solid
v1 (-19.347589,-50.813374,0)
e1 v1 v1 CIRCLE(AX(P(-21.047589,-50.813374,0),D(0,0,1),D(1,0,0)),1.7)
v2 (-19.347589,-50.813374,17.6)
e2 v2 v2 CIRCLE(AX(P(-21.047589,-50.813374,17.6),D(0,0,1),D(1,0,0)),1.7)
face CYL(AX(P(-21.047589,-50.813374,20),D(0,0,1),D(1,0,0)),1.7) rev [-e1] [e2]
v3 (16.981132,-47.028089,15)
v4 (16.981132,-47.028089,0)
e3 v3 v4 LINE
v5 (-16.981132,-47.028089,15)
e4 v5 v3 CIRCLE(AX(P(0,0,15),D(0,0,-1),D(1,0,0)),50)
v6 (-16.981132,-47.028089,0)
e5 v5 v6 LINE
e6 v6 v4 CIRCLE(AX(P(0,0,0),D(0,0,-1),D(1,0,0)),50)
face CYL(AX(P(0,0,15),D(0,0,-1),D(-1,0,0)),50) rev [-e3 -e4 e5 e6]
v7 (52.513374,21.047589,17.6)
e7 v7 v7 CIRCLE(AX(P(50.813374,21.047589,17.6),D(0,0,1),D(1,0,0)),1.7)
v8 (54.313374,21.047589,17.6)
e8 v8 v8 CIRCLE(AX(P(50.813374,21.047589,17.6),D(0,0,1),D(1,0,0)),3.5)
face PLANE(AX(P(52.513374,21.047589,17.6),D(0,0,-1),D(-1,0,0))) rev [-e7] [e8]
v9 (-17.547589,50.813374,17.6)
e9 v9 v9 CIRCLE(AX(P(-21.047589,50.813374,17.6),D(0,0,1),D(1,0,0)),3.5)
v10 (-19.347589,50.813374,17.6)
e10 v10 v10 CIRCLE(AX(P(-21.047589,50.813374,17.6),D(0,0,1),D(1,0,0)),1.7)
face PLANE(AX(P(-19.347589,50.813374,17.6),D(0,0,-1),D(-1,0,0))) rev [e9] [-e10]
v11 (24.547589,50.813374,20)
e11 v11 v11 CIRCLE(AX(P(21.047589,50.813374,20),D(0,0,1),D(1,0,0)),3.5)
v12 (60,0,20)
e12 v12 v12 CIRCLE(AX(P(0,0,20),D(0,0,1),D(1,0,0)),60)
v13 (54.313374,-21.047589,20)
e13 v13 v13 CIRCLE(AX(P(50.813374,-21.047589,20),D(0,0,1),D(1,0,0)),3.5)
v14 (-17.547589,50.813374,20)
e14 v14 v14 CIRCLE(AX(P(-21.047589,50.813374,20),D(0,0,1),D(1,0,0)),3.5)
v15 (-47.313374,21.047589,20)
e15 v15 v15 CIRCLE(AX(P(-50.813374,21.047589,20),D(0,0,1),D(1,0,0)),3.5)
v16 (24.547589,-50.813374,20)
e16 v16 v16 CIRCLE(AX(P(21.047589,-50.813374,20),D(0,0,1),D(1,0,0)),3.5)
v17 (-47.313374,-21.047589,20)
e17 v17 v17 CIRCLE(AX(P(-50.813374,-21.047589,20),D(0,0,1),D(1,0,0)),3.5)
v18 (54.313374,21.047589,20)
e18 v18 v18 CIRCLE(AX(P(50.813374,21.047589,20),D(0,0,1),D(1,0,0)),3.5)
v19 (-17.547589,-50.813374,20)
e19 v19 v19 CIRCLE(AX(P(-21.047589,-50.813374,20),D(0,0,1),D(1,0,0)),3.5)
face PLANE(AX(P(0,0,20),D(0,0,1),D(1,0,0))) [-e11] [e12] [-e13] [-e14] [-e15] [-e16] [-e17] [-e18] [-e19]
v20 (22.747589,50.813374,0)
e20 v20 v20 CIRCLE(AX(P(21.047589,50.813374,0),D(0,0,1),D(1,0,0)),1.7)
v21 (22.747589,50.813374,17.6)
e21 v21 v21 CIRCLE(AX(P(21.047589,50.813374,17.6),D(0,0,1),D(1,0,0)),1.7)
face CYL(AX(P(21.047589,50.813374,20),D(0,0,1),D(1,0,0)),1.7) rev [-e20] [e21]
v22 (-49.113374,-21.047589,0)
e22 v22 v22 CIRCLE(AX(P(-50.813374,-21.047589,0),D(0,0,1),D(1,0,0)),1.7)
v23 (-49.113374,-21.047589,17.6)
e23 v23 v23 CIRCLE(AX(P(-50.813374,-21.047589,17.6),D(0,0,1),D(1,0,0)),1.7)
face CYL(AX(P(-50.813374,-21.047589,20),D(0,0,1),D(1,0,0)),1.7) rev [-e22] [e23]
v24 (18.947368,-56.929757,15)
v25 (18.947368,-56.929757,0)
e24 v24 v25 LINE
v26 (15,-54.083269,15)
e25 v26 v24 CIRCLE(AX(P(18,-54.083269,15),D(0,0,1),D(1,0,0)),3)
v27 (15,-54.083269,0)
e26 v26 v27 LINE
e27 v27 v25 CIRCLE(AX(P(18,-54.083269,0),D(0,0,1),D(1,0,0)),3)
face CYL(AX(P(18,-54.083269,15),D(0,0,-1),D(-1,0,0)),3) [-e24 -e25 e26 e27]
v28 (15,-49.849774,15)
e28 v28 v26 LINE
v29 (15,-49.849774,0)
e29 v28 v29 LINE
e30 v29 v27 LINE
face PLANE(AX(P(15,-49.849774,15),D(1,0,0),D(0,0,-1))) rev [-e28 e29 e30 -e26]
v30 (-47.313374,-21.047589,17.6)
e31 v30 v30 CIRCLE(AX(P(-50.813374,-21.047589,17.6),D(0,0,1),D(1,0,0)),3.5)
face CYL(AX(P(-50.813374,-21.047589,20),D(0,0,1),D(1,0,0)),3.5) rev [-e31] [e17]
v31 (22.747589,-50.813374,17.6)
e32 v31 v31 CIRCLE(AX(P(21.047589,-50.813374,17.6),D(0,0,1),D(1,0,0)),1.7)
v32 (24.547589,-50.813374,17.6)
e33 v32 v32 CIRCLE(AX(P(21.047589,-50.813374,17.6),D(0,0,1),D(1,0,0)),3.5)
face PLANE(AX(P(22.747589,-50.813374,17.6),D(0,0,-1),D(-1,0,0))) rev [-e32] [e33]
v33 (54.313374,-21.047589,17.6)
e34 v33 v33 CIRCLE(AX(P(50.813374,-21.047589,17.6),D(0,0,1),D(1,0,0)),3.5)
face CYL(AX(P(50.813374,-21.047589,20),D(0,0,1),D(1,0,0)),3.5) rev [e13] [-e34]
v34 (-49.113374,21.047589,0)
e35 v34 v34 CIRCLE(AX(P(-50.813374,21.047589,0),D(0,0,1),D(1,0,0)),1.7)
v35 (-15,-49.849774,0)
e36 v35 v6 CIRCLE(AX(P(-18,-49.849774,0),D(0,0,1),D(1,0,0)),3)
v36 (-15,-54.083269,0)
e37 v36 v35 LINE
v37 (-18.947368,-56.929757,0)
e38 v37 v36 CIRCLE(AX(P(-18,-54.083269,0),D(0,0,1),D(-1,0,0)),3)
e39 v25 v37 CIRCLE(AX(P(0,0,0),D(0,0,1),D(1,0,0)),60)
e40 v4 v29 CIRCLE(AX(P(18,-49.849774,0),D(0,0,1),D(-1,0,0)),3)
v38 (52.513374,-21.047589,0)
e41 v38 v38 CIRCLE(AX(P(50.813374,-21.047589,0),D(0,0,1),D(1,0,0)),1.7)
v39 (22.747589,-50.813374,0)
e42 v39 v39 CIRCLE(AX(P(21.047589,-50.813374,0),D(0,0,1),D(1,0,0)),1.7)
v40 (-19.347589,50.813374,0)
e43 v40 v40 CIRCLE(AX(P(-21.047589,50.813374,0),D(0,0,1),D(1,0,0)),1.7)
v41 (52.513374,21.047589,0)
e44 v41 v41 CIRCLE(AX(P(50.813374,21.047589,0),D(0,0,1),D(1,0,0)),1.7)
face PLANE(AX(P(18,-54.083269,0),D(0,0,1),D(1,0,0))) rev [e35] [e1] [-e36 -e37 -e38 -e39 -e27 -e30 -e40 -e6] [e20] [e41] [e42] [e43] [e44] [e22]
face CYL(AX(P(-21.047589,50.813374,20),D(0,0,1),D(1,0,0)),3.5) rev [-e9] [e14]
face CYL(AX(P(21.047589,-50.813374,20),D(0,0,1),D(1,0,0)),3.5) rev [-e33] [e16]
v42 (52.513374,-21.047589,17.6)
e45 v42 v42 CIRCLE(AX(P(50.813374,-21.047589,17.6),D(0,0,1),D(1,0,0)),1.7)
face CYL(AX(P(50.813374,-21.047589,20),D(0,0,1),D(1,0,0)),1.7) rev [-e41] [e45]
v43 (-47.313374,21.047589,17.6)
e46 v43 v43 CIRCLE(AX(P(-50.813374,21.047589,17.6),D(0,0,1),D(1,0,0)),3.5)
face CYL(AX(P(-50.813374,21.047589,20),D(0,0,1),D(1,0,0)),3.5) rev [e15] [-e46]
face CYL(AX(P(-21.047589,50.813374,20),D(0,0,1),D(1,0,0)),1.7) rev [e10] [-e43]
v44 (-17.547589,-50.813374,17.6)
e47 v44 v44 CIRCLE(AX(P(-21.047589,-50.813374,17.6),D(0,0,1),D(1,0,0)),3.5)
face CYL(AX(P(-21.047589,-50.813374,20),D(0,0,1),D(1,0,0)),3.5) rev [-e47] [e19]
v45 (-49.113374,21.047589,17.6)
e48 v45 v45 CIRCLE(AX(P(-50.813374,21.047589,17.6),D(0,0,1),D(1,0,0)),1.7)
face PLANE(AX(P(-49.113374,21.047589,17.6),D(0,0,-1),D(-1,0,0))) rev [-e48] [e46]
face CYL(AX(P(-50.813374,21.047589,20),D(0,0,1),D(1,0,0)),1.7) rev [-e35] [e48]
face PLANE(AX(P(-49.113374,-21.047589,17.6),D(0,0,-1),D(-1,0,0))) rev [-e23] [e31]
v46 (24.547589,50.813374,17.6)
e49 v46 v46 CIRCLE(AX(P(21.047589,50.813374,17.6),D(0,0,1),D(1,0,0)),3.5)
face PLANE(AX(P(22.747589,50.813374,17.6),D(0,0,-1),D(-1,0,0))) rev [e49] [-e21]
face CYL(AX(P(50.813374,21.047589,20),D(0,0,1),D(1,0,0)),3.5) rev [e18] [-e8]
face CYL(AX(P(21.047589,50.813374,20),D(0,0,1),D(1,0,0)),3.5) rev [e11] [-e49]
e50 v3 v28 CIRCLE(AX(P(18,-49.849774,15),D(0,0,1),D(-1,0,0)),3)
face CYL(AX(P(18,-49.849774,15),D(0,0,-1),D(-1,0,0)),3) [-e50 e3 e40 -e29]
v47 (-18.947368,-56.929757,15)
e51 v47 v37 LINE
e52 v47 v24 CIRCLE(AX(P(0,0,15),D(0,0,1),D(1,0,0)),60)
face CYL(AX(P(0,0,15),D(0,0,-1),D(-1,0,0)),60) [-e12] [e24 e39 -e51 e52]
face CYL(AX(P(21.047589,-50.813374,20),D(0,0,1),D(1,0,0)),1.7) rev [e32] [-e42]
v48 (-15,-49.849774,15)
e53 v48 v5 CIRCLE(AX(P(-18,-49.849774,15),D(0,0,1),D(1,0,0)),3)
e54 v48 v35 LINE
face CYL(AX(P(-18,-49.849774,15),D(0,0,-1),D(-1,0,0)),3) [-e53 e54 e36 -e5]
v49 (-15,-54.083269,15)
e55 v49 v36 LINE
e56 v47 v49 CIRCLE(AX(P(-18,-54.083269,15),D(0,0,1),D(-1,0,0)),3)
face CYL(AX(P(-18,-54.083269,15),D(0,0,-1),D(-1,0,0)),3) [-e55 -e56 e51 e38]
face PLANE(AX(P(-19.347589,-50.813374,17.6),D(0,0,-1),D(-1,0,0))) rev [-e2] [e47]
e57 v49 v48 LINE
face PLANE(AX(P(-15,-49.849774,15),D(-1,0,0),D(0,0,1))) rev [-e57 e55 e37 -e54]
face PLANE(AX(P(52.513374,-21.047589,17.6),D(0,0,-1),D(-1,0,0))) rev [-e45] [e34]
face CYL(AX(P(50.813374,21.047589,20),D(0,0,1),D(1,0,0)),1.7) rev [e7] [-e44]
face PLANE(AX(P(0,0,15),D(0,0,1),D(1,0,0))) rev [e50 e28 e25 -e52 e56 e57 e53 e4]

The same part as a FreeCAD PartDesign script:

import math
import FreeCAD as App
import Part
import Sketcher
from FreeCAD import Vector
Q = App.Units.Quantity

doc = App.newDocument("Part")
body = doc.addObject("PartDesign::Body", "Body")

sketch1 = doc.addObject("Sketcher::SketchObject", "Sketch")
body.addObject(sketch1)
sketch1.AttachmentSupport = (doc.XY_Plane, [""])
sketch1.MapMode = "FlatFace"
sketch1.addGeometry([
    Part.LineSegment(Vector(-15, -54.083269, 0), Vector(-15, -49.849774, 0)),
    Part.ArcOfCircle(Part.Circle(Vector(-18, -49.849774, 0), Vector(0, 0, 1), 3), math.radians(0), math.radians(70.146115)),
    Part.ArcOfCircle(Part.Circle(Vector(0, 0, 0), Vector(0, 0, 1), 50), math.radians(-70.146115), math.radians(250.146115)),
    Part.ArcOfCircle(Part.Circle(Vector(18, -49.849774, 0), Vector(0, 0, 1), 3), math.radians(109.853885), math.radians(180)),
    Part.LineSegment(Vector(15, -49.849774, 0), Vector(15, -54.083269, 0)),
    Part.ArcOfCircle(Part.Circle(Vector(18, -54.083269, 0), Vector(0, 0, 1), 3), math.radians(180), math.radians(288.40848)),
    Part.ArcOfCircle(Part.Circle(Vector(0, 0, 0), Vector(0, 0, 1), 60), math.radians(-71.59152), math.radians(251.59152)),
    Part.ArcOfCircle(Part.Circle(Vector(-18, -54.083269, 0), Vector(0, 0, 1), 3), math.radians(-108.40848), math.radians(0)),
], False)
sketch1.addConstraint([
    Sketcher.Constraint("Tangent", 0, 2, 1, 1),
    Sketcher.Constraint("Tangent", 1, 2, 2, 2),
    Sketcher.Constraint("Tangent", 2, 1, 3, 1),
    Sketcher.Constraint("Tangent", 3, 2, 4, 1),
    Sketcher.Constraint("Tangent", 4, 2, 5, 1),
    Sketcher.Constraint("Tangent", 5, 2, 6, 1),
    Sketcher.Constraint("Tangent", 6, 2, 7, 1),
    Sketcher.Constraint("Tangent", 7, 2, 0, 1),
    Sketcher.Constraint("Vertical", 0),
    Sketcher.Constraint("Vertical", 4),
    Sketcher.Constraint("Coincident", 2, 3, -1, 1),
    Sketcher.Constraint("Coincident", 6, 3, -1, 1),
    Sketcher.Constraint("Equal", 1, 3),
    Sketcher.Constraint("Equal", 3, 5),
    Sketcher.Constraint("Equal", 5, 7),
    Sketcher.Constraint("Horizontal", 1, 3, 3, 3),
    Sketcher.Constraint("Radius", 1, Q("3 mm")),
    Sketcher.Constraint("Radius", 2, Q("50 mm")),
    Sketcher.Constraint("Radius", 6, Q("60 mm")),
    Sketcher.Constraint("DistanceX", 1, 3, -1, 1, Q("18 mm")),
])
pad1 = doc.addObject("PartDesign::Pad", "Pad")
body.addObject(pad1)
pad1.Profile = sketch1
pad1.Length = 15

sketch2 = doc.addObject("Sketcher::SketchObject", "Sketch001")
body.addObject(sketch2)
sketch2.AttachmentSupport = (doc.XY_Plane, [""])
sketch2.MapMode = "FlatFace"
sketch2.AttachmentOffset = App.Placement(Vector(0, 0, 15), App.Rotation())
sketch2.addGeometry(Part.Circle(Vector(0, 0, 0), Vector(0, 0, 1), 60), False)
sketch2.addConstraint([
    Sketcher.Constraint("Coincident", 0, 3, -1, 1),
    Sketcher.Constraint("Diameter", 0, Q("120 mm")),
])
pad2 = doc.addObject("PartDesign::Pad", "Pad001")
body.addObject(pad2)
pad2.Profile = sketch2
pad2.Length = 5

sketch3 = doc.addObject("Sketcher::SketchObject", "Sketch002")
body.addObject(sketch3)
sketch3.AttachmentSupport = (doc.XY_Plane, [""])
sketch3.MapMode = "FlatFace"
sketch3.AttachmentOffset = App.Placement(Vector(0, 0, 20), App.Rotation())
sketch3.addGeometry([
    Part.Circle(Vector(-21.047589, 50.813374, 0), Vector(0, 0, 1), 1.7),
    Part.Circle(Vector(21.047589, 50.813374, 0), Vector(0, 0, 1), 1.7),
    Part.Circle(Vector(50.813374, 21.047589, 0), Vector(0, 0, 1), 1.7),
    Part.Circle(Vector(50.813374, -21.047589, 0), Vector(0, 0, 1), 1.7),
    Part.Circle(Vector(21.047589, -50.813374, 0), Vector(0, 0, 1), 1.7),
    Part.Circle(Vector(-21.047589, -50.813374, 0), Vector(0, 0, 1), 1.7),
    Part.Circle(Vector(-50.813374, -21.047589, 0), Vector(0, 0, 1), 1.7),
    Part.Circle(Vector(-50.813374, 21.047589, 0), Vector(0, 0, 1), 1.7),
], False)
sketch3.addConstraint([
    Sketcher.Constraint("Equal", 0, 1),
    Sketcher.Constraint("Equal", 1, 2),
    Sketcher.Constraint("Equal", 2, 3),
    Sketcher.Constraint("Equal", 3, 4),
    Sketcher.Constraint("Equal", 4, 5),
    Sketcher.Constraint("Equal", 5, 6),
    Sketcher.Constraint("Equal", 6, 7),
    Sketcher.Constraint("Symmetric", 0, 3, 4, 3, -1, 1),
    Sketcher.Constraint("Symmetric", 1, 3, 5, 3, -1, 1),
    Sketcher.Constraint("Symmetric", 2, 3, 6, 3, -1, 1),
    Sketcher.Constraint("Symmetric", 3, 3, 7, 3, -1, 1),
    Sketcher.Constraint("Symmetric", 0, 3, 1, 3, -2),
    Sketcher.Constraint("Symmetric", 3, 3, 6, 3, -2),
    Sketcher.Constraint("Diameter", 0, Q("3.4 mm")),
    Sketcher.Constraint("DistanceX", 0, 3, -1, 1, Q("21.047589 mm")),
    Sketcher.Constraint("DistanceY", -1, 1, 2, 3, Q("21.047589 mm")),
    Sketcher.Constraint("DistanceY", 4, 3, 1, 3, Q("101.626749 mm")),
    Sketcher.Constraint("DistanceX", 6, 3, 3, 3, Q("101.626749 mm")),
])
doc.recompute()
hole = doc.addObject("PartDesign::Hole", "Hole")
body.addObject(hole)
hole.Profile = sketch3
hole.ThreadType = "None"
hole.Diameter = 3.4
hole.DepthType = "ThroughAll"
hole.HoleCutType = "Counterbore"
hole.HoleCutDiameter = 7
hole.HoleCutDepth = 2.4

doc.recompute()
